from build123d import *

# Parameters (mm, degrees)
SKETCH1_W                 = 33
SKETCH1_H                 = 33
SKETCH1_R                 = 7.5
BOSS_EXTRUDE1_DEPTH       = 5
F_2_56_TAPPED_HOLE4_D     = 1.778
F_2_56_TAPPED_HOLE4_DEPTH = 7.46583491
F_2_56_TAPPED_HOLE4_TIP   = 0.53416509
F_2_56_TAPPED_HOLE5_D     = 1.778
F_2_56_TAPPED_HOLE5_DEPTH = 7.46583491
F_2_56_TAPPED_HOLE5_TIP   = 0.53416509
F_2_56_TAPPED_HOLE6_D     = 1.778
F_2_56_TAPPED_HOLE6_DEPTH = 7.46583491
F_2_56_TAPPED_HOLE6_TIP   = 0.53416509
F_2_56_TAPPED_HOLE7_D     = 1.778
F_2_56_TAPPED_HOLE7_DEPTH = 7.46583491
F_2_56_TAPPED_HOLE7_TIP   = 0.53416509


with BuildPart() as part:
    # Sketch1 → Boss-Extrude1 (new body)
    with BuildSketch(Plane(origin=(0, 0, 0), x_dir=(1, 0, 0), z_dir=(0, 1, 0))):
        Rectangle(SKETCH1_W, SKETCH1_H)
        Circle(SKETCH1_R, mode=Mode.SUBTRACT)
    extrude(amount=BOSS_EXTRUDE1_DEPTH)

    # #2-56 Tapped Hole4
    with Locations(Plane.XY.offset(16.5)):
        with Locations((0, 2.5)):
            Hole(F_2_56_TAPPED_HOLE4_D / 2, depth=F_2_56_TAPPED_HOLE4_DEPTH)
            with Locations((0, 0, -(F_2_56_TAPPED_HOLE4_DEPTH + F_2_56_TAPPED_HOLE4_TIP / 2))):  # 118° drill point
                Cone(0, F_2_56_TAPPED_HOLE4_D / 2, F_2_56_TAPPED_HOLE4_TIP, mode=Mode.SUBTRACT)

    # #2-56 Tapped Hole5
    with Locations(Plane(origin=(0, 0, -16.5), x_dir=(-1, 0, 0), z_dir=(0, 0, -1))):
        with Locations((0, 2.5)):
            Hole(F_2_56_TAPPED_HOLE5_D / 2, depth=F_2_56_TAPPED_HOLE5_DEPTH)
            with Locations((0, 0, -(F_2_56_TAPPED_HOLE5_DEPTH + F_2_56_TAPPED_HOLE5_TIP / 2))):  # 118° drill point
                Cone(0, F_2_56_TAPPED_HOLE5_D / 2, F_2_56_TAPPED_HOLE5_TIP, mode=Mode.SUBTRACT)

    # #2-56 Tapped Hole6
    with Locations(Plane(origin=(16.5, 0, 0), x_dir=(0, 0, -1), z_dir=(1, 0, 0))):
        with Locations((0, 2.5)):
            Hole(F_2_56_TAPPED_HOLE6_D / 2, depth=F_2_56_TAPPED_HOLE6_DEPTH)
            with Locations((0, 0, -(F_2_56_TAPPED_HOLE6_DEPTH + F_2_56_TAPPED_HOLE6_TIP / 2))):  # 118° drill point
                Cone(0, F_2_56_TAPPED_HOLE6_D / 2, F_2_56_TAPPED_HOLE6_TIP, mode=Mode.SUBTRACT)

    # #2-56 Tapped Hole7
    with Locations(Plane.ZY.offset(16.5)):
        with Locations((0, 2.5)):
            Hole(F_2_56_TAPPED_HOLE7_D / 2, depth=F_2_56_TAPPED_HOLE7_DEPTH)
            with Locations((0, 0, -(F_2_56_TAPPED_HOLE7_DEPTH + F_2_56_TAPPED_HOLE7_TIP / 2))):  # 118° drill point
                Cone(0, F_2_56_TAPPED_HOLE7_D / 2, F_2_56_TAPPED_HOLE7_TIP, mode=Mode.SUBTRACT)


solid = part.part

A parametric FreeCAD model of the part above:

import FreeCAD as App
import Part
import Sketcher

V = App.Vector
Q = App.Units.Quantity

doc = App.newDocument("Part")
params = doc.addObject("Spreadsheet::Sheet", "Params")
for row, (alias, value) in enumerate([
    ("sketch1_diameter", "15 mm"),
    ("sketch1_width", "33 mm"),
    ("pad1_length", "5 mm"),
    ("hole_diameter", "1.778 mm"),
    ("hole_depth", "7.465835 mm"),
    ("hole2_diameter", "1.778 mm"),
    ("hole2_depth", "7.465835 mm"),
    ("hole3_diameter", "1.778 mm"),
    ("hole3_depth", "7.465835 mm"),
    ("hole4_diameter", "1.778 mm"),
    ("hole4_depth", "7.465835 mm"),
], start=1):
    params.set(f"A{row}", alias)
    params.set(f"B{row}", "=" + value)
    params.setAlias(f"B{row}", alias)

body = doc.addObject("PartDesign::Body", "Body")

# Sketch on XZ plane
sketch1 = doc.addObject("Sketcher::SketchObject", "Sketch")
body.addObject(sketch1)
sketch1.AttachmentSupport = (doc.XZ_Plane, [""])
sketch1.MapMode = "FlatFace"
sketch1.addGeometry([
    Part.LineSegment(V(-16, -16, 0), V(-16, 16, 0)),  # 0
    Part.LineSegment(V(-16, 16, 0), V(16, 16, 0)),  # 1
    Part.LineSegment(V(16, 16, 0), V(16, -16, 0)),  # 2
    Part.LineSegment(V(16, -16, 0), V(-16, -16, 0)),  # 3
    Part.Circle(V(0, 0, 0), V(0, 0, 1), 8),  # 4
], False)
sketch1.addConstraint([
    Sketcher.Constraint("Coincident", 0, 2, 1, 1),
    Sketcher.Constraint("Coincident", 1, 2, 2, 1),
    Sketcher.Constraint("Coincident", 2, 2, 3, 1),
    Sketcher.Constraint("Coincident", 3, 2, 0, 1),
    Sketcher.Constraint("Vertical", 0),
    Sketcher.Constraint("Horizontal", 1),
    Sketcher.Constraint("Vertical", 2),
    Sketcher.Constraint("Horizontal", 3),
    Sketcher.Constraint("Coincident", 4, 3, -1, 1),
    Sketcher.Constraint("Symmetric", 0, 2, 2, 2, -1, 1),
    Sketcher.Constraint("Equal", 3, 0),
    Sketcher.Constraint("Diameter", 4, Q("15 mm")),
    Sketcher.Constraint("DistanceX", 1, 1, 1, 2, Q("33 mm")),
])
sketch1.setExpression("Constraints[11]", "Params.sketch1_diameter")
sketch1.setExpression("Constraints[12]", "Params.sketch1_width")
pad1 = doc.addObject("PartDesign::Pad", "Pad")
body.addObject(pad1)
pad1.Profile = sketch1
pad1.setExpression("Length", "Params.pad1_length")
pad1.Reversed = True

# Sketch on XY plane
sketch2 = doc.addObject("Sketcher::SketchObject", "Sketch001")
body.addObject(sketch2)
sketch2.AttachmentSupport = (doc.XY_Plane, [""])
sketch2.MapMode = "FlatFace"
sketch2.AttachmentOffset = App.Placement(V(0, 0, 16.5), App.Rotation())
sketch2.addGeometry(Part.Circle(V(0, 2.5, 0), V(0, 0, 1), 0.9), False)
sketch2.addConstraint([
    Sketcher.Constraint("PointOnObject", 0, 3, -2),
    Sketcher.Constraint("Diameter", 0, Q("1.778 mm")),
    Sketcher.Constraint("DistanceY", -1, 1, 0, 3, Q("2.5 mm")),
])
doc.recompute()
hole = doc.addObject("PartDesign::Hole", "Hole")
body.addObject(hole)
hole.Profile = sketch2
hole.ThreadType = "None"
hole.setExpression("Diameter", "Params.hole_diameter")
hole.DepthType = "Dimension"
hole.setExpression("Depth", "Params.hole_depth")
hole.DrillPoint = "Angled"
hole.DrillPointAngle = 118

# Sketch on XY plane
sketch3 = doc.addObject("Sketcher::SketchObject", "Sketch002")
body.addObject(sketch3)
sketch3.AttachmentSupport = (doc.XY_Plane, [""])
sketch3.MapMode = "FlatFace"
sketch3.AttachmentOffset = App.Placement(V(0, 0, -16.5), App.Rotation())
sketch3.addGeometry(Part.Circle(V(0, 2.5, 0), V(0, 0, 1), 0.9), False)
sketch3.addConstraint([
    Sketcher.Constraint("PointOnObject", 0, 3, -2),
    Sketcher.Constraint("Diameter", 0, Q("1.778 mm")),
    Sketcher.Constraint("DistanceY", -1, 1, 0, 3, Q("2.5 mm")),
])
doc.recompute()
hole2 = doc.addObject("PartDesign::Hole", "Hole001")
body.addObject(hole2)
hole2.Profile = sketch3
hole2.ThreadType = "None"
hole2.setExpression("Diameter", "Params.hole2_diameter")
hole2.DepthType = "Dimension"
hole2.setExpression("Depth", "Params.hole2_depth")
hole2.DrillPoint = "Angled"
hole2.DrillPointAngle = 118
hole2.Reversed = True

# Sketch on YZ plane
sketch4 = doc.addObject("Sketcher::SketchObject", "Sketch003")
body.addObject(sketch4)
sketch4.AttachmentSupport = (doc.YZ_Plane, [""])
sketch4.MapMode = "FlatFace"
sketch4.AttachmentOffset = App.Placement(V(0, 0, 16.5), App.Rotation())
sketch4.addGeometry(Part.Circle(V(2.5, 0, 0), V(0, 0, 1), 0.9), False)
sketch4.addConstraint([
    Sketcher.Constraint("PointOnObject", 0, 3, -1),
    Sketcher.Constraint("Diameter", 0, Q("1.778 mm")),
    Sketcher.Constraint("DistanceX", -1, 1, 0, 3, Q("2.5 mm")),
])
doc.recompute()
hole3 = doc.addObject("PartDesign::Hole", "Hole002")
body.addObject(hole3)
hole3.Profile = sketch4
hole3.ThreadType = "None"
hole3.setExpression("Diameter", "Params.hole3_diameter")
hole3.DepthType = "Dimension"
hole3.setExpression("Depth", "Params.hole3_depth")
hole3.DrillPoint = "Angled"
hole3.DrillPointAngle = 118

# Sketch on YZ plane
sketch5 = doc.addObject("Sketcher::SketchObject", "Sketch004")
body.addObject(sketch5)
sketch5.AttachmentSupport = (doc.YZ_Plane, [""])
sketch5.MapMode = "FlatFace"
sketch5.AttachmentOffset = App.Placement(V(0, 0, -16.5), App.Rotation())
sketch5.addGeometry(Part.Circle(V(2.5, 0, 0), V(0, 0, 1), 0.9), False)
sketch5.addConstraint([
    Sketcher.Constraint("PointOnObject", 0, 3, -1),
    Sketcher.Constraint("Diameter", 0, Q("1.778 mm")),
    Sketcher.Constraint("DistanceX", -1, 1, 0, 3, Q("2.5 mm")),
])
doc.recompute()
hole4 = doc.addObject("PartDesign::Hole", "Hole003")
body.addObject(hole4)
hole4.Profile = sketch5
hole4.ThreadType = "None"
hole4.setExpression("Diameter", "Params.hole4_diameter")
hole4.DepthType = "Dimension"
hole4.setExpression("Depth", "Params.hole4_depth")
hole4.DrillPoint = "Angled"
hole4.DrillPointAngle = 118
hole4.Reversed = True

doc.recompute()
